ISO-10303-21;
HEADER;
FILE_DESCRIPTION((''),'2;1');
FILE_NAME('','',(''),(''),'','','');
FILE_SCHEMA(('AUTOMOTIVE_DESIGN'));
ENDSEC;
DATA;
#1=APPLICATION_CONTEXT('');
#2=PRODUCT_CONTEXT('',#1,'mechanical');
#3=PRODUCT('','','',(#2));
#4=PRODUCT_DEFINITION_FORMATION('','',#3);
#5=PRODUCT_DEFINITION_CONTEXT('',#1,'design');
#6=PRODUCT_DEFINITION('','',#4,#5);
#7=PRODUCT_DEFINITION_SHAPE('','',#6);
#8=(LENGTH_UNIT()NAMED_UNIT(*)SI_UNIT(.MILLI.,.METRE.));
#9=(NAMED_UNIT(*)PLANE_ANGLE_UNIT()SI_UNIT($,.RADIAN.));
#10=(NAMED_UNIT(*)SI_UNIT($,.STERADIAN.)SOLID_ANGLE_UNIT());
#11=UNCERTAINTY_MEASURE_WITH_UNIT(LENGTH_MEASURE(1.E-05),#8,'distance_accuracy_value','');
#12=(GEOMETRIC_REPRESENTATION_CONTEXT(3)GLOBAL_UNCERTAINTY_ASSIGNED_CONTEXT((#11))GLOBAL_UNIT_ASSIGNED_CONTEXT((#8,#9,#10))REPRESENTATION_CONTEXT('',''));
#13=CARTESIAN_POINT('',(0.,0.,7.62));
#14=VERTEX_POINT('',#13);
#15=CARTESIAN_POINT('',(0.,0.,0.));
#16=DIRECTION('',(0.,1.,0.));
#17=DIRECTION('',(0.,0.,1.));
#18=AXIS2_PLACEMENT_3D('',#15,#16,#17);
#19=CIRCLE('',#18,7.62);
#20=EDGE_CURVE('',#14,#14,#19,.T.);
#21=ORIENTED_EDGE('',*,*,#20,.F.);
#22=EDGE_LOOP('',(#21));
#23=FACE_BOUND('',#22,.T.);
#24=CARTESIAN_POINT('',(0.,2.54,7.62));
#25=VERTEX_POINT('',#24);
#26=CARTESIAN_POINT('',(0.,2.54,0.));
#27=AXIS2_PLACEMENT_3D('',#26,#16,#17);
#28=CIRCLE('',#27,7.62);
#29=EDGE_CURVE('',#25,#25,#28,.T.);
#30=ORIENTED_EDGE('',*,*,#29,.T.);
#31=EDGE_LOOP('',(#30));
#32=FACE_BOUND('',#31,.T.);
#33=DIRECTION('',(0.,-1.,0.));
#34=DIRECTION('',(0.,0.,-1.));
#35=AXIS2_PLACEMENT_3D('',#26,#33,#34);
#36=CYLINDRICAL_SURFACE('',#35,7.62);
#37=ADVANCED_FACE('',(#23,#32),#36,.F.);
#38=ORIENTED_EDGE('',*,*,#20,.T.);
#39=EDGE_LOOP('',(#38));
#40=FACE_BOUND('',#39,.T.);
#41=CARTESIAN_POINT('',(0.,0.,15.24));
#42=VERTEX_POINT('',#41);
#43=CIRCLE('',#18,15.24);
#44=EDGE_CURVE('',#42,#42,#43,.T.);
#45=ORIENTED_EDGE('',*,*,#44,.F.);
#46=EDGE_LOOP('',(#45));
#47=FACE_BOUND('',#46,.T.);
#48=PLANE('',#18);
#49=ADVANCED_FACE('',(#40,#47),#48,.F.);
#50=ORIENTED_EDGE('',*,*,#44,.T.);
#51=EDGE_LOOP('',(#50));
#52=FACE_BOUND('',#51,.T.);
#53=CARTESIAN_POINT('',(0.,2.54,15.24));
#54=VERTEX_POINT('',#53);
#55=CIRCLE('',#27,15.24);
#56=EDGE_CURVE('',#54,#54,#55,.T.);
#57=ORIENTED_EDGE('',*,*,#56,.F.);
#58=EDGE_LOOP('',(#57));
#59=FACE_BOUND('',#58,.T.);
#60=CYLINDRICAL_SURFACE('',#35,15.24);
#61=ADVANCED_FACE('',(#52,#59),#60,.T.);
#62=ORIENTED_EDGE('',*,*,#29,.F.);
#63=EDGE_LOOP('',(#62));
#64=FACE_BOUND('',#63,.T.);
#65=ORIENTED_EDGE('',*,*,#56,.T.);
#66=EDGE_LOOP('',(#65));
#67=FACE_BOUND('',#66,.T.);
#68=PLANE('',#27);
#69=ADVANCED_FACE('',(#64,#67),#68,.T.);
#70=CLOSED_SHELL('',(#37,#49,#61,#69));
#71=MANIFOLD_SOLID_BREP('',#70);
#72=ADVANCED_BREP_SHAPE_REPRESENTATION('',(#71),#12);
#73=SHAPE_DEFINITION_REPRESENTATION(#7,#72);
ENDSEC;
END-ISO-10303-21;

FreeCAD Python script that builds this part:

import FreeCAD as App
import Part
import Sketcher
from FreeCAD import Vector
Q = App.Units.Quantity

doc = App.newDocument("Part")
body = doc.addObject("PartDesign::Body", "Body")

# Sketch on XZ plane
sketch1 = doc.addObject("Sketcher::SketchObject", "Sketch")
body.addObject(sketch1)
sketch1.AttachmentSupport = (doc.XZ_Plane, [""])
sketch1.MapMode = "FlatFace"
sketch1.addGeometry(Part.Circle(Vector(0, 0, 0), Vector(0, 0, 1), 15), False)
sketch1.addGeometry(Part.Circle(Vector(0, 0, 0), Vector(0, 0, 1), 8), False)
sketch1.addConstraint(Sketcher.Constraint("Coincident", 0, 3, -1, 1))
sketch1.addConstraint(Sketcher.Constraint("Coincident", 1, 3, -1, 1))
sketch1.addConstraint(Sketcher.Constraint("Diameter", 0, Q("1.2 in")))
sketch1.addConstraint(Sketcher.Constraint("Diameter", 1, Q("0.6 in")))
pad1 = doc.addObject("PartDesign::Pad", "Pad")
body.addObject(pad1)
pad1.Profile = sketch1
pad1.Length = Q("0.1 in")
pad1.Reversed = True

doc.recompute()
